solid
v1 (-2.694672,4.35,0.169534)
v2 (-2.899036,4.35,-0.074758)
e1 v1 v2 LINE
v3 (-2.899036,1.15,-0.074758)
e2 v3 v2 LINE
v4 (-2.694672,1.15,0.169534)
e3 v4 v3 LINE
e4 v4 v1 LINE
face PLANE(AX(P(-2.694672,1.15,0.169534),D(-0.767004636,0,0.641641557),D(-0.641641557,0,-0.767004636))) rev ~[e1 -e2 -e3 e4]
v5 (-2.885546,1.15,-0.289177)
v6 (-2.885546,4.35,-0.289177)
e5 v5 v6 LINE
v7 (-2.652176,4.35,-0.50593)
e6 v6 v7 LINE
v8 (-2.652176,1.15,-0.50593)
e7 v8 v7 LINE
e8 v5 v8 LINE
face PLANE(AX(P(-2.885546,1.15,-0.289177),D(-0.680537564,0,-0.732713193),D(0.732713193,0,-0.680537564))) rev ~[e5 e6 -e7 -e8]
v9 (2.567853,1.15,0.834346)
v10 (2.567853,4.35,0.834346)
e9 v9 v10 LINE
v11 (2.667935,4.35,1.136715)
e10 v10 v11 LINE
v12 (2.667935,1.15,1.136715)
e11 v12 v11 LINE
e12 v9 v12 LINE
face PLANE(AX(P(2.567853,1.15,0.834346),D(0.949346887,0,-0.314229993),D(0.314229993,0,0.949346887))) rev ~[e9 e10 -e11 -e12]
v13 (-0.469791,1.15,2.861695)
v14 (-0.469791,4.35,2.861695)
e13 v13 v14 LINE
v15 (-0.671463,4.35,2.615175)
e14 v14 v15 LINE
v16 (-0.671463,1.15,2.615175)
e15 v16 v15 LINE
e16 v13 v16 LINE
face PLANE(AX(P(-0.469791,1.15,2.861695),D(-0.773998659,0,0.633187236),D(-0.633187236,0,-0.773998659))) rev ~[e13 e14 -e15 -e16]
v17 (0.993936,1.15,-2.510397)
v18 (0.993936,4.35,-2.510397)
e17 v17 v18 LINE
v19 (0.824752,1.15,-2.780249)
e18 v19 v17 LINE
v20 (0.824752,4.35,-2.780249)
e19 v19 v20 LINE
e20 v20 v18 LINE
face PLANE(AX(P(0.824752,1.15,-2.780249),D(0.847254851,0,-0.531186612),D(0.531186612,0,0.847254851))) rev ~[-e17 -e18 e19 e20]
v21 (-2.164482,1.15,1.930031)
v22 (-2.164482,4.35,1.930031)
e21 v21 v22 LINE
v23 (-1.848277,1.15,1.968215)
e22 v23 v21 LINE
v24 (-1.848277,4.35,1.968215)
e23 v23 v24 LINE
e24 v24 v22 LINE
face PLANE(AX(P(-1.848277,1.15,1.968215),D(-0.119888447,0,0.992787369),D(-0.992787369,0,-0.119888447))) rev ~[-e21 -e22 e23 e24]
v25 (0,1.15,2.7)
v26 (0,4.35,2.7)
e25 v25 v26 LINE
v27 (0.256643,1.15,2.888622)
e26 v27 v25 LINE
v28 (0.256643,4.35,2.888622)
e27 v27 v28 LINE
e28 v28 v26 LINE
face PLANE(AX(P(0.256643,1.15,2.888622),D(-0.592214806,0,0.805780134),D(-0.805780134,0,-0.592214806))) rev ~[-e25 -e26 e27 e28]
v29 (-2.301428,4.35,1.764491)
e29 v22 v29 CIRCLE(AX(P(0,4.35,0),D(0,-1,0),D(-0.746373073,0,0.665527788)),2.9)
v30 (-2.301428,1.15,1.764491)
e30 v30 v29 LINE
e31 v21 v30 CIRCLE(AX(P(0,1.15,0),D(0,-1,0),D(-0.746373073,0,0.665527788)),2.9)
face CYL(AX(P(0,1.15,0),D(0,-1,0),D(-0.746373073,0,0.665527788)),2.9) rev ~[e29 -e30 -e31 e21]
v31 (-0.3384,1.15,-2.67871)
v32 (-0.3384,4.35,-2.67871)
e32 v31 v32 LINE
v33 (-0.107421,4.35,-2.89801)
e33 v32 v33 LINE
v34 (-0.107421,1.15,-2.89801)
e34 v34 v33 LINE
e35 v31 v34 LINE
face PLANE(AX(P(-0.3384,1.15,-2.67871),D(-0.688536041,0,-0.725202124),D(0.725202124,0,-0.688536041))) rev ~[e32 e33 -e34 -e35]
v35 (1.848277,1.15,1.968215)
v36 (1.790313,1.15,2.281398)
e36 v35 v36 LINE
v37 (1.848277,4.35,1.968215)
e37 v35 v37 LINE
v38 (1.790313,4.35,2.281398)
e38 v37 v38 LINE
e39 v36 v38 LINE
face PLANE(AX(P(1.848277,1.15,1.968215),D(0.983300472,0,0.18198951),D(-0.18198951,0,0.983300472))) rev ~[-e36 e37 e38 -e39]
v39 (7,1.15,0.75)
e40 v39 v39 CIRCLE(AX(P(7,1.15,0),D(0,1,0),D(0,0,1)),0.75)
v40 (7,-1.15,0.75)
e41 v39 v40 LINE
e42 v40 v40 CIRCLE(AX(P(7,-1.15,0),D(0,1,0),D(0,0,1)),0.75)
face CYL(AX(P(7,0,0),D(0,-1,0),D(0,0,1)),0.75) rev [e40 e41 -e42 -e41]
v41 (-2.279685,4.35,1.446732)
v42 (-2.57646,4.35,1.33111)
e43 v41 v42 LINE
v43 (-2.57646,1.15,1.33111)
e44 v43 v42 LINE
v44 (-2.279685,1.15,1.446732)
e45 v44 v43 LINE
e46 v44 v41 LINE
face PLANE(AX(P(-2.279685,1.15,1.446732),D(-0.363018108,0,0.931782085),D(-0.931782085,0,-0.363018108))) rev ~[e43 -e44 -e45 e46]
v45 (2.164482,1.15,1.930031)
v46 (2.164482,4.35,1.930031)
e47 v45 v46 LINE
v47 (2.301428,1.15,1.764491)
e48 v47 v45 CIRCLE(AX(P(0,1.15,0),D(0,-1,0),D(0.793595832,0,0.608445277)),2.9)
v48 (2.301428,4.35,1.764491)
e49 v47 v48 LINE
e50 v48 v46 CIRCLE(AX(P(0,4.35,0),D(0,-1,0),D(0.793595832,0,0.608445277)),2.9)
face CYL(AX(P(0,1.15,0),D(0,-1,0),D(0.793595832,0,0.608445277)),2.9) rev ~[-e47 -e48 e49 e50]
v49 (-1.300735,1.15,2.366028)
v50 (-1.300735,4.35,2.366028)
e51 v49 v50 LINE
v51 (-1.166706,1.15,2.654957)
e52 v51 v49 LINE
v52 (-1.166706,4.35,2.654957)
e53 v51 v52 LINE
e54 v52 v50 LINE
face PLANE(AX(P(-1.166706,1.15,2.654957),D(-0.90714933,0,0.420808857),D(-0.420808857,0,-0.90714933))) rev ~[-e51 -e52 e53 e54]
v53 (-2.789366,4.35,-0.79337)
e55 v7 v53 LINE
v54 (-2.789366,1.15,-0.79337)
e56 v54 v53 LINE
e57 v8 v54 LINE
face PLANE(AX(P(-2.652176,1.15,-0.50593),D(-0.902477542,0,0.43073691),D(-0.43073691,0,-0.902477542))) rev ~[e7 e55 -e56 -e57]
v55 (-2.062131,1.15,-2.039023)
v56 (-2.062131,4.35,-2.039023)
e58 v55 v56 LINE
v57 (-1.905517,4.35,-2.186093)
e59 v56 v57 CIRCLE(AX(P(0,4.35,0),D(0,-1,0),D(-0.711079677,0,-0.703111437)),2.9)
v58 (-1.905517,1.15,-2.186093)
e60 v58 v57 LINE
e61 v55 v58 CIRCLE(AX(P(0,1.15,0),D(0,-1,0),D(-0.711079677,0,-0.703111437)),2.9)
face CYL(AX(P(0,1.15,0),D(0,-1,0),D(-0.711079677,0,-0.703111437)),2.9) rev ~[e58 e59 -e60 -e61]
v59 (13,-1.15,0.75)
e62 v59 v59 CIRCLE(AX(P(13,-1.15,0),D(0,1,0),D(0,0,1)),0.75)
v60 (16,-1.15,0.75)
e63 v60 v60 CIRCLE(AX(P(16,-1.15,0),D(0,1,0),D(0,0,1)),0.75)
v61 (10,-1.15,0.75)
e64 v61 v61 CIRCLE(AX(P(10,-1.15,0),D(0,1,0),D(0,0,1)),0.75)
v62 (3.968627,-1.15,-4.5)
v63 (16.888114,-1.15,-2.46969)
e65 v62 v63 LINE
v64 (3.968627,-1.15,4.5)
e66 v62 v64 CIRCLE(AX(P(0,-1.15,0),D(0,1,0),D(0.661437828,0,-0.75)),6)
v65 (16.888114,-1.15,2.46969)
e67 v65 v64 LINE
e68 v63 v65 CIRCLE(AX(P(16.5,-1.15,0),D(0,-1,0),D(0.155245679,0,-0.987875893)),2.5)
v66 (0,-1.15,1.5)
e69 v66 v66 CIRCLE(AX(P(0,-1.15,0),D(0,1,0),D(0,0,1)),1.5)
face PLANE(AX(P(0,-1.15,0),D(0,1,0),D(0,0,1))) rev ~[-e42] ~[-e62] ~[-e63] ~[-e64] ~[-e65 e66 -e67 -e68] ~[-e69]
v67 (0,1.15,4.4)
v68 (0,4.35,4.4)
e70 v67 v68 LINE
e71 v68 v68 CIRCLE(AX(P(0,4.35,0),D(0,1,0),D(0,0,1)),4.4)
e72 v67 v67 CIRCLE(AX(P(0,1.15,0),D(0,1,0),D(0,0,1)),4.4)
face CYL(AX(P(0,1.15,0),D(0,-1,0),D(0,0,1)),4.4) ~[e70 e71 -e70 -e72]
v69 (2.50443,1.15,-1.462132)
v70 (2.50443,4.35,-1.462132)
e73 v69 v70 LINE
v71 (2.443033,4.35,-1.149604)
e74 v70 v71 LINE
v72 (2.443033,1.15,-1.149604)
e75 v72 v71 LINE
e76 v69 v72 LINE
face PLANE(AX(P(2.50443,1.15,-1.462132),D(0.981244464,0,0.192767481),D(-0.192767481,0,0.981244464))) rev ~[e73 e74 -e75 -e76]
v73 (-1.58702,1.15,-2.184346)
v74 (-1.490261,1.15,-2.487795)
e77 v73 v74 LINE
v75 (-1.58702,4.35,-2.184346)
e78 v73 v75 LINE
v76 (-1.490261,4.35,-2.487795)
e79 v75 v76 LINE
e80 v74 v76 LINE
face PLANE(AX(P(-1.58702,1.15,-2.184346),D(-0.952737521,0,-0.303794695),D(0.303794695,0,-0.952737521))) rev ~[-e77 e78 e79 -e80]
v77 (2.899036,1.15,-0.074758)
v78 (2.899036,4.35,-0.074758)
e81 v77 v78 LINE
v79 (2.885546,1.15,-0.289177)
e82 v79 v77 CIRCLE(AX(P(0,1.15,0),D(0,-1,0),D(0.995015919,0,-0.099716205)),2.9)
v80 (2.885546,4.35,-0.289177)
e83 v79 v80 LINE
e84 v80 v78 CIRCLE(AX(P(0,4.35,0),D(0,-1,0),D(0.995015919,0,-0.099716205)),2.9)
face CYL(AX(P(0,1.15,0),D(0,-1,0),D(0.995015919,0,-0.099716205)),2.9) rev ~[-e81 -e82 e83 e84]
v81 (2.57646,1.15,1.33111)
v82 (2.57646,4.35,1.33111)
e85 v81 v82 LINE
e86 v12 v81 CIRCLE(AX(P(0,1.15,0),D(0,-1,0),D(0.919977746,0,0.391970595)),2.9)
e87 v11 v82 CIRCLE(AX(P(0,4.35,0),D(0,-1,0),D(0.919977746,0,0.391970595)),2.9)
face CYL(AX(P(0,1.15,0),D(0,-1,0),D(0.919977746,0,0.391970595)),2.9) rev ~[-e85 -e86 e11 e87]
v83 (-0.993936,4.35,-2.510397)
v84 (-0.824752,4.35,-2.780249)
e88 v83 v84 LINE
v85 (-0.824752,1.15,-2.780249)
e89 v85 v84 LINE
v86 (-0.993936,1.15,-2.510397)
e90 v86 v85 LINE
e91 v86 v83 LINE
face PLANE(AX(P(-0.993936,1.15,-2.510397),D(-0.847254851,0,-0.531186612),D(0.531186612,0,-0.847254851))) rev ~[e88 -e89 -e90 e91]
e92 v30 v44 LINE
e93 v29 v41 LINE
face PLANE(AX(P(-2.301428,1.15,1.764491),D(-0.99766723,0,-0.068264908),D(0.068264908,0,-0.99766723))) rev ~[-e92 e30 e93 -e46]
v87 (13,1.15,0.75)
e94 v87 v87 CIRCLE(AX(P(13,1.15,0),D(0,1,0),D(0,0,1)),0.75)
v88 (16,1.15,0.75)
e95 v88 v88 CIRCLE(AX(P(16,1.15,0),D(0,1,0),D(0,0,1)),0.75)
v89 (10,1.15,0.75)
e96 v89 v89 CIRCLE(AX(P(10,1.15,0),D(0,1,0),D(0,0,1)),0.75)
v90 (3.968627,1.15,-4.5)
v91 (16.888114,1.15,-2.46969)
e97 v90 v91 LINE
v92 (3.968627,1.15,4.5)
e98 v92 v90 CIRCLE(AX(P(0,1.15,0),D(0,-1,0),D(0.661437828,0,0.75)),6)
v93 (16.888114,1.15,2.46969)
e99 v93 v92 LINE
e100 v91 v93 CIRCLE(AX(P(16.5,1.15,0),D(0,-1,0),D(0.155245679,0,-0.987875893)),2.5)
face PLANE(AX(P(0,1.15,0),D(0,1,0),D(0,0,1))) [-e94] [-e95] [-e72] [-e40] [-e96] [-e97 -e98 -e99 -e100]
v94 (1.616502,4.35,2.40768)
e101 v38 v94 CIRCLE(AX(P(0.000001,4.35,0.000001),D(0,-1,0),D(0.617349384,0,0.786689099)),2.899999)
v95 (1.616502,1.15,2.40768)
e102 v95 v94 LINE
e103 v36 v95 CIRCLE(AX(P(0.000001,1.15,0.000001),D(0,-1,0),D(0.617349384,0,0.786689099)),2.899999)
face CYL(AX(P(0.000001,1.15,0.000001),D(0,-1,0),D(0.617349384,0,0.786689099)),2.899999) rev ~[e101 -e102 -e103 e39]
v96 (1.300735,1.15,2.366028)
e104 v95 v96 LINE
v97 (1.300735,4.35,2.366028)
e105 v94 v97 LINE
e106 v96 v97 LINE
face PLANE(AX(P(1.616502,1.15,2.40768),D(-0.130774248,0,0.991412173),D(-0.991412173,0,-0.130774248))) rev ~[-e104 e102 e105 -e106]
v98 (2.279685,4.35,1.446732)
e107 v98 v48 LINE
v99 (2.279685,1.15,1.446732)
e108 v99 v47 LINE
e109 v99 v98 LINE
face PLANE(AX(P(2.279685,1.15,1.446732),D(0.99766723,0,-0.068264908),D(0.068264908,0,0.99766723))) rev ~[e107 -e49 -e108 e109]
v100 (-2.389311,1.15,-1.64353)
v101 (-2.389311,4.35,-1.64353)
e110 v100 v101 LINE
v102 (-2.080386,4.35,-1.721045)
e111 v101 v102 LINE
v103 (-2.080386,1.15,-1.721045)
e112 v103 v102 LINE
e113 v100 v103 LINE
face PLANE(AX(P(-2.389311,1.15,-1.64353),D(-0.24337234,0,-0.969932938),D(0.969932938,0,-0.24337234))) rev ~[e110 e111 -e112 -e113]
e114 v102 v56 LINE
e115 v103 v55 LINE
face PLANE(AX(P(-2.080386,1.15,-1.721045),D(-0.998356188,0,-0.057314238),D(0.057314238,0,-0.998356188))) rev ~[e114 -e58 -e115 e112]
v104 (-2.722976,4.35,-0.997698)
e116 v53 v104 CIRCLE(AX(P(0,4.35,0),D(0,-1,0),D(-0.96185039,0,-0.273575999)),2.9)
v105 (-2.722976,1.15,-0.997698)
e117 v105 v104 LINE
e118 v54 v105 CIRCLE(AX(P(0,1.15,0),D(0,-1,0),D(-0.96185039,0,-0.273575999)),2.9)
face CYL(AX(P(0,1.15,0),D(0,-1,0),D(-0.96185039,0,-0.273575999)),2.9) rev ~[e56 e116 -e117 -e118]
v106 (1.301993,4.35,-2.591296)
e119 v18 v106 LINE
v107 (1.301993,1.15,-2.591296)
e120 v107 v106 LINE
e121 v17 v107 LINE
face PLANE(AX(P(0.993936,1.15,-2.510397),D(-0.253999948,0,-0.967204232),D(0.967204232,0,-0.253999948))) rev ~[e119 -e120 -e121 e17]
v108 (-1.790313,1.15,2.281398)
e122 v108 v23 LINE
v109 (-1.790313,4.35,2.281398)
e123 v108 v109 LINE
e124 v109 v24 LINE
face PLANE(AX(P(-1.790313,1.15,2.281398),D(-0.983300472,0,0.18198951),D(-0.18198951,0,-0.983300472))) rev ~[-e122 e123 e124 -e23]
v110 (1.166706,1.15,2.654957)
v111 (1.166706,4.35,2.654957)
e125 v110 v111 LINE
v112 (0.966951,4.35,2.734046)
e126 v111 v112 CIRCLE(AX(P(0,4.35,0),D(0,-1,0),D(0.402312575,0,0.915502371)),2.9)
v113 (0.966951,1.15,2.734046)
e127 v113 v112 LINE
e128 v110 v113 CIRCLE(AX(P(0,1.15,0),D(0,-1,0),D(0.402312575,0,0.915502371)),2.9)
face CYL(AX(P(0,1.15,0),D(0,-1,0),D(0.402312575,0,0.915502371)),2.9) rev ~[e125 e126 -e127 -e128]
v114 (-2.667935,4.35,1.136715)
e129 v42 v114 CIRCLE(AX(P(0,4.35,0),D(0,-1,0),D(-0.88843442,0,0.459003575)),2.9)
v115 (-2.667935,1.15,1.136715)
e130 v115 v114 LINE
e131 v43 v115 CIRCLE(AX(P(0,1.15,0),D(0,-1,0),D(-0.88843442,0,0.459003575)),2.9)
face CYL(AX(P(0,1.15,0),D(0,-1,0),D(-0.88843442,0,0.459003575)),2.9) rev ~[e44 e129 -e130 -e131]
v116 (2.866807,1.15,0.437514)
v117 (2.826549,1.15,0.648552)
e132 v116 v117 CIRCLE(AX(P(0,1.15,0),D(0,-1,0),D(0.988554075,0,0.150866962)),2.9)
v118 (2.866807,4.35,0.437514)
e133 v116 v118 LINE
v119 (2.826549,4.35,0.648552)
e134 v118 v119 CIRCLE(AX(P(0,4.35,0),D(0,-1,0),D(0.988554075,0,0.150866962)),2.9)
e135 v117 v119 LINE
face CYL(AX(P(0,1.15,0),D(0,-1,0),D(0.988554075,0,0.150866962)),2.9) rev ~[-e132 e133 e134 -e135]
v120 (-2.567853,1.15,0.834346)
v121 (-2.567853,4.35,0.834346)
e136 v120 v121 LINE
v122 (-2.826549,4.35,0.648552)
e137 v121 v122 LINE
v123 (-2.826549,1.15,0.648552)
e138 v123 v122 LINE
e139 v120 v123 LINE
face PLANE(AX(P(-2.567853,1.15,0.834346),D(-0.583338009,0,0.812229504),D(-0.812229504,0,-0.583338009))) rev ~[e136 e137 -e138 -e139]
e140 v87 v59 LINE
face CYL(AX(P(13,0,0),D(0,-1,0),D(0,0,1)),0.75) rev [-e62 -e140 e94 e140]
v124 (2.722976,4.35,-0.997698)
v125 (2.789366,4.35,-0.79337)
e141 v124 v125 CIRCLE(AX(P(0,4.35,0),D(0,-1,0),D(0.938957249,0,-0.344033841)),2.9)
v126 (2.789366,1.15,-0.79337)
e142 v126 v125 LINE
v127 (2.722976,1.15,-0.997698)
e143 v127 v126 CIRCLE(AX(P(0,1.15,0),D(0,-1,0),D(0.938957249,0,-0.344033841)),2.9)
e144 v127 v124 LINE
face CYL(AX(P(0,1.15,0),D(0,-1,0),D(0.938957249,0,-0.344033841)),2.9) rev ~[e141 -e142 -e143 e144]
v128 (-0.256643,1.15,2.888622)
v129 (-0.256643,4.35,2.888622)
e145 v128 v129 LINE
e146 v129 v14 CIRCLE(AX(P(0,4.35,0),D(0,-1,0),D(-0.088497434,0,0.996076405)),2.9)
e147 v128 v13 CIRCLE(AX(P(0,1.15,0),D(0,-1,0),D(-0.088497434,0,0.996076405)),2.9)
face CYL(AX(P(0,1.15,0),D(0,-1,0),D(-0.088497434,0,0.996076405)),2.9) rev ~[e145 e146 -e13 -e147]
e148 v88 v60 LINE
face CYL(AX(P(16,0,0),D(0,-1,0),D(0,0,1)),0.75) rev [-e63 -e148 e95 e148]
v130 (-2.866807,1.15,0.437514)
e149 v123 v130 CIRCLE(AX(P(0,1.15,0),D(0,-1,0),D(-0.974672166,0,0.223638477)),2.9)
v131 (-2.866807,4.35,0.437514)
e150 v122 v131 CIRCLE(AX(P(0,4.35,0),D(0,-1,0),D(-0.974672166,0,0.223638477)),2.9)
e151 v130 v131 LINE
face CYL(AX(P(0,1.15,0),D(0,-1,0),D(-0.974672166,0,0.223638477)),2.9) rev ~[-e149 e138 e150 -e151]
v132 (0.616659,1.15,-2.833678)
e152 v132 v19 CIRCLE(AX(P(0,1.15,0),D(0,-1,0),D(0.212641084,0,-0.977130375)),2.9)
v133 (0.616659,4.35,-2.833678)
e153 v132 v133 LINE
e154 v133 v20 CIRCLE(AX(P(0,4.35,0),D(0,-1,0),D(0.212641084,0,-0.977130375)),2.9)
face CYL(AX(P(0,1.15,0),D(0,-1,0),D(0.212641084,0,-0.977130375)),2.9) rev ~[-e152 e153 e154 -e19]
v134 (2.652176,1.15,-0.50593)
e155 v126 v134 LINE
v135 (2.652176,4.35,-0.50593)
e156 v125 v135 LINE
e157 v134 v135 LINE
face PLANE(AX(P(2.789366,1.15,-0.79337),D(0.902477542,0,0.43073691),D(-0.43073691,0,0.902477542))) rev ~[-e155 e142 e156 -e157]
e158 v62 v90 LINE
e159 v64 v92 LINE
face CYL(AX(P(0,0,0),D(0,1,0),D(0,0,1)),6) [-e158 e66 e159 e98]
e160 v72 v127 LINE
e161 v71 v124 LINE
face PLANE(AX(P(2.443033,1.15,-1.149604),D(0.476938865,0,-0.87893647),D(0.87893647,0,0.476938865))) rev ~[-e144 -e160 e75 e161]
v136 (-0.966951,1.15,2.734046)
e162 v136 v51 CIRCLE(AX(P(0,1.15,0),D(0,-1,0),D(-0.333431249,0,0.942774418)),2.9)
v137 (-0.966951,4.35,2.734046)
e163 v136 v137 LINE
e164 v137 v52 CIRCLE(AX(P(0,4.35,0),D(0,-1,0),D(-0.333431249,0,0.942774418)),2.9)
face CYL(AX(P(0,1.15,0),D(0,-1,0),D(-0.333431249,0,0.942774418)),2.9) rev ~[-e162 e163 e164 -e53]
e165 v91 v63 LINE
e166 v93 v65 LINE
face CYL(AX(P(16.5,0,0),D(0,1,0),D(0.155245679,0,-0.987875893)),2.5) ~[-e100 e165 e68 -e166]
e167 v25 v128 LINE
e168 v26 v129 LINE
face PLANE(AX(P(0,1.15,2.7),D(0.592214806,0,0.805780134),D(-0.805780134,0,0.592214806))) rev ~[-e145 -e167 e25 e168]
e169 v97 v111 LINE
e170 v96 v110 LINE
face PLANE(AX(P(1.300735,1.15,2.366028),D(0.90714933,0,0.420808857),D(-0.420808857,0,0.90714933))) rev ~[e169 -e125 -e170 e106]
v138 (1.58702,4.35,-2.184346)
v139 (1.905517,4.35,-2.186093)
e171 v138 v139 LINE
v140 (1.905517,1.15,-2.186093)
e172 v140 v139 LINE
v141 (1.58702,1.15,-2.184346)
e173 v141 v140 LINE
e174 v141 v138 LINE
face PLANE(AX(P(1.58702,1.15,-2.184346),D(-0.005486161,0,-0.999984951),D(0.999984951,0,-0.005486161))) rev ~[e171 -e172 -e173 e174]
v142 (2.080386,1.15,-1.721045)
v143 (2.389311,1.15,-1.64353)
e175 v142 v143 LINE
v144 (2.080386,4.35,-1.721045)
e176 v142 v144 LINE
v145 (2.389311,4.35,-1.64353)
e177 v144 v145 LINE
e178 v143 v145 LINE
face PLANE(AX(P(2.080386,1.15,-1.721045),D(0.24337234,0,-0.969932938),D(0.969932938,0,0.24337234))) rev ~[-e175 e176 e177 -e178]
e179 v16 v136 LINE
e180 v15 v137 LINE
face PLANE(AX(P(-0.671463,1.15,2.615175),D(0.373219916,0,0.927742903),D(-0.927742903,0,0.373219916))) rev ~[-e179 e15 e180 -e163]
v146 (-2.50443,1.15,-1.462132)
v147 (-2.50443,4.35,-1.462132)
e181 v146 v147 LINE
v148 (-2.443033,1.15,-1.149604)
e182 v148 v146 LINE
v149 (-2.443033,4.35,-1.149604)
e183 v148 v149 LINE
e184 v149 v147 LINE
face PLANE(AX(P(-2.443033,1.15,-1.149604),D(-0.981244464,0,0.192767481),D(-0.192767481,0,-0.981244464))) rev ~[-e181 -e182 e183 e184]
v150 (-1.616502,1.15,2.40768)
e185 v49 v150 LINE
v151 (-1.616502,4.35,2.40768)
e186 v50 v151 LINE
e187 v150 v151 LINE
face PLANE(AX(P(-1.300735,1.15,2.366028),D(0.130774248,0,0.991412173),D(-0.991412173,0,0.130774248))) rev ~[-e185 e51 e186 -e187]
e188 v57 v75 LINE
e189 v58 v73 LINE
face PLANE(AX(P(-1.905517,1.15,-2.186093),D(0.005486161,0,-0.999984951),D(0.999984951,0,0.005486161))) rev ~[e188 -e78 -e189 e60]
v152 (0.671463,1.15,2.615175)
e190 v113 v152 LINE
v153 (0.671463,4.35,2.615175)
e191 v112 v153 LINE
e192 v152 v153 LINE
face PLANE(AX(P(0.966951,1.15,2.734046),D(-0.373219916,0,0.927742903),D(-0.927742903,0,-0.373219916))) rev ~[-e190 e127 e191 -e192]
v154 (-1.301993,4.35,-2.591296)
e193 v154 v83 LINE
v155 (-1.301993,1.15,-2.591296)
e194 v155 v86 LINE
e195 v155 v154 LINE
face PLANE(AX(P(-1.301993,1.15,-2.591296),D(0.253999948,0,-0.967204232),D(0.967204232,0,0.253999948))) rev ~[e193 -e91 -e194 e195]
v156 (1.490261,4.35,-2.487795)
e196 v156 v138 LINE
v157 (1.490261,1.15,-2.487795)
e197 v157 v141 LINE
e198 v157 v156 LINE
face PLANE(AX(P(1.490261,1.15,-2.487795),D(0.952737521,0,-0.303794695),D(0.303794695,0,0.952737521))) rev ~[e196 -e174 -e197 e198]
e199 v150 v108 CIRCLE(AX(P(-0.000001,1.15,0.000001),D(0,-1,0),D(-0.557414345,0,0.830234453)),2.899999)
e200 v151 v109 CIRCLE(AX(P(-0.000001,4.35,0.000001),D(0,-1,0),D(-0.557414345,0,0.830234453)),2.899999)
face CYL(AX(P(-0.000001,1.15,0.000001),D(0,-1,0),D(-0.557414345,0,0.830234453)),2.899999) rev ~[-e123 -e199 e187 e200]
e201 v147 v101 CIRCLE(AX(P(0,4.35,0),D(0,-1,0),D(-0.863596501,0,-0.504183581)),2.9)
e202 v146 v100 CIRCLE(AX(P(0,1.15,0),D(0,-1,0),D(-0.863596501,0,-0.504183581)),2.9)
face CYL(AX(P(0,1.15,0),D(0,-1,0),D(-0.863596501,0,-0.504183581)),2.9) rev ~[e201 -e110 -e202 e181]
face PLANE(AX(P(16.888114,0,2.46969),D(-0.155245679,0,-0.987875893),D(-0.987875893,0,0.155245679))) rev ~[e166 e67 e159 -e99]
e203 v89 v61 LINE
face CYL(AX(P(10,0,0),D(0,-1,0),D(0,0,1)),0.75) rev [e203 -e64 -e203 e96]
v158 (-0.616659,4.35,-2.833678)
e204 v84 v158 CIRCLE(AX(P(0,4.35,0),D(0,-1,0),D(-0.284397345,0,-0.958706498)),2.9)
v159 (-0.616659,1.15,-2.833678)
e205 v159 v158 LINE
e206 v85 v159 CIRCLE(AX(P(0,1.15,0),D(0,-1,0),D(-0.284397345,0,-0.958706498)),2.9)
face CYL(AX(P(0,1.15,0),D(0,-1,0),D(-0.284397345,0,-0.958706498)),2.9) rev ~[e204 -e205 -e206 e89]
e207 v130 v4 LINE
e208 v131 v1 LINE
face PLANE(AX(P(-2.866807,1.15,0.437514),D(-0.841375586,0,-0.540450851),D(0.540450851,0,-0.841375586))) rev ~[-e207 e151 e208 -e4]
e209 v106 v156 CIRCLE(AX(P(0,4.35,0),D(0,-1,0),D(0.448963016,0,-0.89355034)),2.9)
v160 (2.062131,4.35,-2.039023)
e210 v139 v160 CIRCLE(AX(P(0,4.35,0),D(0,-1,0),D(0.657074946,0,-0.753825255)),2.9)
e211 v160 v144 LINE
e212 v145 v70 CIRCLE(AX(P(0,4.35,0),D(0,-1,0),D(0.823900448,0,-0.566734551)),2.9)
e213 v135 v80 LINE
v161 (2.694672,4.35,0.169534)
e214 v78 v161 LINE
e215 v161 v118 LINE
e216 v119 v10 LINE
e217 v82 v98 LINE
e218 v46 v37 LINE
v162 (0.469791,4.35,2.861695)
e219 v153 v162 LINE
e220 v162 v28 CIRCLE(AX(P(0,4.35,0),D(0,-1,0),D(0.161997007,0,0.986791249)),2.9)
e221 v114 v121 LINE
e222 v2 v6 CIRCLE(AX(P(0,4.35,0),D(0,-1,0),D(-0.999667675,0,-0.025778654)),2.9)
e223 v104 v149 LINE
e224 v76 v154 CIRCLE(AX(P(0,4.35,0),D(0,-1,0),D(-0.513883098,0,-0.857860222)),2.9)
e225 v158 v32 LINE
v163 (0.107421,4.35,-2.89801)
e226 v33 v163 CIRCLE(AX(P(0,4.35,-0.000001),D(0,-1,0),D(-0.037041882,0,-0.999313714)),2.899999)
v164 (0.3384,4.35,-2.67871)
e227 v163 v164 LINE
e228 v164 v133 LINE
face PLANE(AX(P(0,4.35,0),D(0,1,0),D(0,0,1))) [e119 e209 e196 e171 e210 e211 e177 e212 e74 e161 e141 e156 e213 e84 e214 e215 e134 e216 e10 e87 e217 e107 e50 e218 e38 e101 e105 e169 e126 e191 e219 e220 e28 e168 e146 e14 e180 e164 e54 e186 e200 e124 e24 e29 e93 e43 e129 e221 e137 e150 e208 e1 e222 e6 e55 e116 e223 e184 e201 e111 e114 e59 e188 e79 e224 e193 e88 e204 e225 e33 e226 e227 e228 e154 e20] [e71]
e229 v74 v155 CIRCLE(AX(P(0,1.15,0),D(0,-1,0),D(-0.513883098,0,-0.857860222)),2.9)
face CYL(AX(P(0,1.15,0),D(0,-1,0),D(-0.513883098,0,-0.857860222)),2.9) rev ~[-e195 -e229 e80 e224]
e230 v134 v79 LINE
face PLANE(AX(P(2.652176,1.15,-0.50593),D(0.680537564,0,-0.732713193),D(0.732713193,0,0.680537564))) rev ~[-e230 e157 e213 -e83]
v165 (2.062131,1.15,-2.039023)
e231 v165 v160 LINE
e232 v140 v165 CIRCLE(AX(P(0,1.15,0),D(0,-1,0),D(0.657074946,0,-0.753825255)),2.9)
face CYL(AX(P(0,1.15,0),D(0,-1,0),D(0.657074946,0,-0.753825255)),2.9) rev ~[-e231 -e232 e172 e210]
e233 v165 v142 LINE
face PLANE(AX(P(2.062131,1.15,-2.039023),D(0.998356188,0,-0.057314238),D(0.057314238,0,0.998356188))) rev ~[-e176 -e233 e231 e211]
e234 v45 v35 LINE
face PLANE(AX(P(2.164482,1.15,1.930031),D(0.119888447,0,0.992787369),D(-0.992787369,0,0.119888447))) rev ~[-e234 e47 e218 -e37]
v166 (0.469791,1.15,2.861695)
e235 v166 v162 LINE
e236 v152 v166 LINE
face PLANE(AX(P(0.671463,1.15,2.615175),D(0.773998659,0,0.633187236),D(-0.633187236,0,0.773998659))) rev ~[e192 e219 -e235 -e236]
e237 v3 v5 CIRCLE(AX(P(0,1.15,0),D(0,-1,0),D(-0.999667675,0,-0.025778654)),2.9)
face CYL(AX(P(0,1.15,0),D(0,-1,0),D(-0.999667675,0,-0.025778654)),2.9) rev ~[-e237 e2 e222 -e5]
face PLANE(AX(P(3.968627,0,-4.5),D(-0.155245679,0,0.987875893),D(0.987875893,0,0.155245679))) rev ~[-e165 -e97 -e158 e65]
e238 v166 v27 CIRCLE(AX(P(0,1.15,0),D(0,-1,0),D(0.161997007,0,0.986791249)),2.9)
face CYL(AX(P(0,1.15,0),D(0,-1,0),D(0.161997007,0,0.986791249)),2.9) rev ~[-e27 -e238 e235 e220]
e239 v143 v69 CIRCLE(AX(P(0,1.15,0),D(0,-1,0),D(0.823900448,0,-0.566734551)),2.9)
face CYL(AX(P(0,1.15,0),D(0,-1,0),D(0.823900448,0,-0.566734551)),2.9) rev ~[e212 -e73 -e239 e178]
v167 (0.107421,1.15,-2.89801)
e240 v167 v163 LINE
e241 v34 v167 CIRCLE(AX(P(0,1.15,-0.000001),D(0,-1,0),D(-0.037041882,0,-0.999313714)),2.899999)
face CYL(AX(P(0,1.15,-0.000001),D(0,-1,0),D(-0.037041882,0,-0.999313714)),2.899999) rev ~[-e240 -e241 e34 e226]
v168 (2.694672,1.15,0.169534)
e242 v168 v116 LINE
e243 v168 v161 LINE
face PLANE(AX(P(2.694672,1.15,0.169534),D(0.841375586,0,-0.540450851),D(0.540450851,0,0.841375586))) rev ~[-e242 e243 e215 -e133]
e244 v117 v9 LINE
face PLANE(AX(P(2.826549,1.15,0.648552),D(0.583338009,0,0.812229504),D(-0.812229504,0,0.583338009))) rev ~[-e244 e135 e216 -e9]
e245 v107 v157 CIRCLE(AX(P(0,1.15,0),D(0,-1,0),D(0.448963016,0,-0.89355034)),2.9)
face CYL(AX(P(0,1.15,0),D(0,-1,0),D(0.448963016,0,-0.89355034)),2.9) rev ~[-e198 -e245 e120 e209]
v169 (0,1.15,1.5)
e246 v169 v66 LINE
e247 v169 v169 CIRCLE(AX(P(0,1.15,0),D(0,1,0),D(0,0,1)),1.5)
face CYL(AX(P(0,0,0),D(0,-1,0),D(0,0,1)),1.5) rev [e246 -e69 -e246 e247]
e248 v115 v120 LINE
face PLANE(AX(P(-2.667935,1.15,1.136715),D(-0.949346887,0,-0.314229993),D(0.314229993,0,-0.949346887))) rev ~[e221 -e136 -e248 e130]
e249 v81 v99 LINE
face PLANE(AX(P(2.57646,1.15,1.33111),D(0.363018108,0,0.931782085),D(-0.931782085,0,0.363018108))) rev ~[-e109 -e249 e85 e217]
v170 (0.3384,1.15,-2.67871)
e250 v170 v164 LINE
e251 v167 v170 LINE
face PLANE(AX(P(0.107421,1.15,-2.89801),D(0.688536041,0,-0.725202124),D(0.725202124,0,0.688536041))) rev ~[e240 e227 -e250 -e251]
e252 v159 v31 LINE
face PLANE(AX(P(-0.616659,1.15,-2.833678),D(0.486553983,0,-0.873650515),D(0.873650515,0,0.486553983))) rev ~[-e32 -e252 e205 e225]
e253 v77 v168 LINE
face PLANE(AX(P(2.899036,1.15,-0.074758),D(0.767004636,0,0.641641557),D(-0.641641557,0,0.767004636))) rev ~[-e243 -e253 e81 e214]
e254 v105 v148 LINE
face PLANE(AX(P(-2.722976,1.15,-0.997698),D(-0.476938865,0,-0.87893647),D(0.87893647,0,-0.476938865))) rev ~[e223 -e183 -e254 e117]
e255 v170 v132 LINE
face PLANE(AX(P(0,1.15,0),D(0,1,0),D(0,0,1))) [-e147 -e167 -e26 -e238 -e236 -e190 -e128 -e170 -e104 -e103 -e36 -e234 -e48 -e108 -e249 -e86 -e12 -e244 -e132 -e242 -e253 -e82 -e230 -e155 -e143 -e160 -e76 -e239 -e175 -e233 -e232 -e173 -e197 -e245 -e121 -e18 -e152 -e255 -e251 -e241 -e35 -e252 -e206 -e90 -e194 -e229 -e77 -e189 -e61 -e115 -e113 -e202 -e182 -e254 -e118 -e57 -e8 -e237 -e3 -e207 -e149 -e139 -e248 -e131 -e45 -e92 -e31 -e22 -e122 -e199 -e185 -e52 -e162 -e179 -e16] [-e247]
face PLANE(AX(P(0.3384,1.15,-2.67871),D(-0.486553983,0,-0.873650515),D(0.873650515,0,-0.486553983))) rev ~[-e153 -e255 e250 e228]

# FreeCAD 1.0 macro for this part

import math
import FreeCAD as App
import Part
import Sketcher

doc = App.newDocument("Part")
body = doc.addObject("PartDesign::Body", "Body")

sketch1 = doc.addObject("Sketcher::SketchObject", "Sketch")
body.addObject(sketch1)
sketch1.AttachmentSupport = (doc.XZ_Plane, [""])
sketch1.MapMode = "FlatFace"
sketch1.addGeometry([
    Part.Circle(App.Vector(0, 0, 0), App.Vector(0, 0, 1), 6),
    Part.Circle(App.Vector(0, 0, 0), App.Vector(0, 0, 1), 1.5),
], False)
sketch1.addConstraint([
    Sketcher.Constraint("Coincident", 0, 3, -1, 1),
    Sketcher.Constraint("Coincident", 1, 3, -1, 1),
    Sketcher.Constraint("Diameter", 0, 12.0),
    Sketcher.Constraint("Diameter", 1, 3.0),
])
pad1 = doc.addObject("PartDesign::Pad", "Pad")
body.addObject(pad1)
pad1.Profile = sketch1
pad1.Length = 2.3
pad1.Midplane = True

sketch2 = doc.addObject("Sketcher::SketchObject", "Sketch001")
body.addObject(sketch2)
sketch2.AttachmentSupport = (doc.XZ_Plane, [""])
sketch2.MapMode = "FlatFace"
sketch2.AttachmentOffset = App.Placement(App.Vector(0, 0, -1.15), App.Rotation())
sketch2.addGeometry([
    Part.Circle(App.Vector(0, 0, 0), App.Vector(0, 0, 1), 4.4),
    Part.ArcOfCircle(Part.Circle(App.Vector(0, 0, 0), App.Vector(0, 0, 1), 2.9), math.radians(-92.12), math.radians(-87.88)),
    Part.LineSegment(App.Vector(0.11, -2.9, 0), App.Vector(0.34, -2.68, 0)),
    Part.LineSegment(App.Vector(0.34, -2.68, 0), App.Vector(0.62, -2.83, 0)),
    Part.ArcOfCircle(Part.Circle(App.Vector(0, 0, 0), App.Vector(0, 0, 1), 2.9), math.radians(-77.72), math.radians(-73.48)),
    Part.LineSegment(App.Vector(0.82, -2.78, 0), App.Vector(0.99, -2.51, 0)),
    Part.LineSegment(App.Vector(0.99, -2.51, 0), App.Vector(1.3, -2.59, 0)),
    Part.ArcOfCircle(Part.Circle(App.Vector(0, 0, 0), App.Vector(0, 0, 1), 2.9), math.radians(-63.32), math.radians(-59.08)),
    Part.LineSegment(App.Vector(1.49, -2.49, 0), App.Vector(1.59, -2.18, 0)),
    Part.LineSegment(App.Vector(1.59, -2.18, 0), App.Vector(1.91, -2.19, 0)),
    Part.ArcOfCircle(Part.Circle(App.Vector(0, 0, 0), App.Vector(0, 0, 1), 2.9), math.radians(-48.92), math.radians(-44.68)),
    Part.LineSegment(App.Vector(2.06, -2.04, 0), App.Vector(2.08, -1.72, 0)),
    Part.LineSegment(App.Vector(2.08, -1.72, 0), App.Vector(2.39, -1.64, 0)),
    Part.ArcOfCircle(Part.Circle(App.Vector(0, 0, 0), App.Vector(0, 0, 1), 2.9), math.radians(-34.52), math.radians(-30.28)),
    Part.LineSegment(App.Vector(2.5, -1.46, 0), App.Vector(2.44, -1.15, 0)),
    Part.LineSegment(App.Vector(2.44, -1.15, 0), App.Vector(2.72, -1, 0)),
    Part.ArcOfCircle(Part.Circle(App.Vector(0, 0, 0), App.Vector(0, 0, 1), 2.9), math.radians(-20.12), math.radians(-15.88)),
    Part.LineSegment(App.Vector(2.79, -0.79, 0), App.Vector(2.65, -0.51, 0)),
    Part.LineSegment(App.Vector(2.65, -0.51, 0), App.Vector(2.89, -0.29, 0)),
    Part.ArcOfCircle(Part.Circle(App.Vector(0, 0, 0), App.Vector(0, 0, 1), 2.9), math.radians(-5.72), math.radians(-1.48)),
    Part.LineSegment(App.Vector(2.9, -0.07, 0), App.Vector(2.69, 0.17, 0)),
    Part.LineSegment(App.Vector(2.69, 0.17, 0), App.Vector(2.87, 0.44, 0)),
    Part.ArcOfCircle(Part.Circle(App.Vector(0, 0, 0), App.Vector(0, 0, 1), 2.9), math.radians(8.68), math.radians(12.92)),
    Part.LineSegment(App.Vector(2.83, 0.65, 0), App.Vector(2.57, 0.83, 0)),
    Part.LineSegment(App.Vector(2.57, 0.83, 0), App.Vector(2.67, 1.14, 0)),
    Part.ArcOfCircle(Part.Circle(App.Vector(0, 0, 0), App.Vector(0, 0, 1), 2.9), math.radians(23.08), math.radians(27.32)),
    Part.LineSegment(App.Vector(2.58, 1.33, 0), App.Vector(2.28, 1.45, 0)),
    Part.LineSegment(App.Vector(2.28, 1.45, 0), App.Vector(2.3, 1.76, 0)),
    Part.ArcOfCircle(Part.Circle(App.Vector(0, 0, 0), App.Vector(0, 0, 1), 2.9), math.radians(37.48), math.radians(41.72)),
    Part.LineSegment(App.Vector(2.16, 1.93, 0), App.Vector(1.85, 1.97, 0)),
    Part.LineSegment(App.Vector(1.85, 1.97, 0), App.Vector(1.79, 2.28, 0)),
    Part.ArcOfCircle(Part.Circle(App.Vector(0, 0, 0), App.Vector(0, 0, 1), 2.9), math.radians(51.88), math.radians(56.12)),
    Part.LineSegment(App.Vector(1.62, 2.41, 0), App.Vector(1.3, 2.37, 0)),
    Part.LineSegment(App.Vector(1.3, 2.37, 0), App.Vector(1.17, 2.65, 0)),
    Part.ArcOfCircle(Part.Circle(App.Vector(0, 0, 0), App.Vector(0, 0, 1), 2.9), math.radians(66.28), math.radians(70.52)),
    Part.LineSegment(App.Vector(0.97, 2.73, 0), App.Vector(0.67, 2.62, 0)),
    Part.LineSegment(App.Vector(0.67, 2.62, 0), App.Vector(0.47, 2.86, 0)),
    Part.ArcOfCircle(Part.Circle(App.Vector(0, 0, 0), App.Vector(0, 0, 1), 2.9), math.radians(80.68), math.radians(84.92)),
    Part.LineSegment(App.Vector(0.26, 2.89, 0), App.Vector(0, 2.7, 0)),
    Part.LineSegment(App.Vector(0, 2.7, 0), App.Vector(-0.26, 2.89, 0)),
    Part.ArcOfCircle(Part.Circle(App.Vector(0, 0, 0), App.Vector(0, 0, 1), 2.9), math.radians(95.08), math.radians(99.32)),
    Part.LineSegment(App.Vector(-0.47, 2.86, 0), App.Vector(-0.67, 2.62, 0)),
    Part.LineSegment(App.Vector(-0.67, 2.62, 0), App.Vector(-0.97, 2.73, 0)),
    Part.ArcOfCircle(Part.Circle(App.Vector(0, 0, 0), App.Vector(0, 0, 1), 2.9), math.radians(109.48), math.radians(113.72)),
    Part.LineSegment(App.Vector(-1.17, 2.65, 0), App.Vector(-1.3, 2.37, 0)),
    Part.LineSegment(App.Vector(-1.3, 2.37, 0), App.Vector(-1.62, 2.41, 0)),
    Part.ArcOfCircle(Part.Circle(App.Vector(0, 0, 0), App.Vector(0, 0, 1), 2.9), math.radians(123.88), math.radians(128.12)),
    Part.LineSegment(App.Vector(-1.79, 2.28, 0), App.Vector(-1.85, 1.97, 0)),
    Part.LineSegment(App.Vector(-1.85, 1.97, 0), App.Vector(-2.16, 1.93, 0)),
    Part.ArcOfCircle(Part.Circle(App.Vector(0, 0, 0), App.Vector(0, 0, 1), 2.9), math.radians(138.28), math.radians(142.52)),
    Part.LineSegment(App.Vector(-2.3, 1.76, 0), App.Vector(-2.28, 1.45, 0)),
    Part.LineSegment(App.Vector(-2.28, 1.45, 0), App.Vector(-2.58, 1.33, 0)),
    Part.ArcOfCircle(Part.Circle(App.Vector(0, 0, 0), App.Vector(0, 0, 1), 2.9), math.radians(152.68), math.radians(156.92)),
    Part.LineSegment(App.Vector(-2.67, 1.14, 0), App.Vector(-2.57, 0.83, 0)),
    Part.LineSegment(App.Vector(-2.57, 0.83, 0), App.Vector(-2.83, 0.65, 0)),
    Part.ArcOfCircle(Part.Circle(App.Vector(0, 0, 0), App.Vector(0, 0, 1), 2.9), math.radians(167.08), math.radians(171.32)),
    Part.LineSegment(App.Vector(-2.87, 0.44, 0), App.Vector(-2.69, 0.17, 0)),
    Part.LineSegment(App.Vector(-2.69, 0.17, 0), App.Vector(-2.9, -0.07, 0)),
    Part.ArcOfCircle(Part.Circle(App.Vector(0, 0, 0), App.Vector(0, 0, 1), 2.9), math.radians(-178.52), math.radians(-174.28)),
    Part.LineSegment(App.Vector(-2.89, -0.29, 0), App.Vector(-2.65, -0.51, 0)),
    Part.LineSegment(App.Vector(-2.65, -0.51, 0), App.Vector(-2.79, -0.79, 0)),
    Part.ArcOfCircle(Part.Circle(App.Vector(0, 0, 0), App.Vector(0, 0, 1), 2.9), math.radians(-164.12), math.radians(-159.88)),
    Part.LineSegment(App.Vector(-2.72, -1, 0), App.Vector(-2.44, -1.15, 0)),
    Part.LineSegment(App.Vector(-2.44, -1.15, 0), App.Vector(-2.5, -1.46, 0)),
    Part.ArcOfCircle(Part.Circle(App.Vector(0, 0, 0), App.Vector(0, 0, 1), 2.9), math.radians(-149.72), math.radians(-145.48)),
    Part.LineSegment(App.Vector(-2.39, -1.64, 0), App.Vector(-2.08, -1.72, 0)),
    Part.LineSegment(App.Vector(-2.08, -1.72, 0), App.Vector(-2.06, -2.04, 0)),
    Part.ArcOfCircle(Part.Circle(App.Vector(0, 0, 0), App.Vector(0, 0, 1), 2.9), math.radians(-135.32), math.radians(-131.08)),
    Part.LineSegment(App.Vector(-1.91, -2.19, 0), App.Vector(-1.59, -2.18, 0)),
    Part.LineSegment(App.Vector(-1.59, -2.18, 0), App.Vector(-1.49, -2.49, 0)),
    Part.ArcOfCircle(Part.Circle(App.Vector(0, 0, 0), App.Vector(0, 0, 1), 2.9), math.radians(-120.92), math.radians(-116.68)),
    Part.LineSegment(App.Vector(-1.3, -2.59, 0), App.Vector(-0.99, -2.51, 0)),
    Part.LineSegment(App.Vector(-0.99, -2.51, 0), App.Vector(-0.82, -2.78, 0)),
    Part.ArcOfCircle(Part.Circle(App.Vector(0, 0, 0), App.Vector(0, 0, 1), 2.9), math.radians(-106.52), math.radians(-102.28)),
    Part.LineSegment(App.Vector(-0.62, -2.83, 0), App.Vector(-0.34, -2.68, 0)),
    Part.LineSegment(App.Vector(-0.34, -2.68, 0), App.Vector(-0.11, -2.9, 0)),
], False)
sketch2.addConstraint([
    Sketcher.Constraint("Coincident", 1, 2, 2, 1),
    Sketcher.Constraint("Coincident", 2, 2, 3, 1),
    Sketcher.Constraint("Coincident", 3, 2, 4, 1),
    Sketcher.Constraint("Coincident", 4, 2, 5, 1),
    Sketcher.Constraint("Coincident", 5, 2, 6, 1),
    Sketcher.Constraint("Coincident", 6, 2, 7, 1),
    Sketcher.Constraint("Coincident", 7, 2, 8, 1),
    Sketcher.Constraint("Coincident", 8, 2, 9, 1),
    Sketcher.Constraint("Coincident", 9, 2, 10, 1),
    Sketcher.Constraint("Coincident", 10, 2, 11, 1),
    Sketcher.Constraint("Coincident", 11, 2, 12, 1),
    Sketcher.Constraint("Coincident", 12, 2, 13, 1),
    Sketcher.Constraint("Coincident", 13, 2, 14, 1),
    Sketcher.Constraint("Coincident", 14, 2, 15, 1),
    Sketcher.Constraint("Coincident", 15, 2, 16, 1),
    Sketcher.Constraint("Coincident", 16, 2, 17, 1),
    Sketcher.Constraint("Coincident", 17, 2, 18, 1),
    Sketcher.Constraint("Coincident", 18, 2, 19, 1),
    Sketcher.Constraint("Coincident", 19, 2, 20, 1),
    Sketcher.Constraint("Coincident", 20, 2, 21, 1),
    Sketcher.Constraint("Coincident", 21, 2, 22, 1),
    Sketcher.Constraint("Coincident", 22, 2, 23, 1),
    Sketcher.Constraint("Coincident", 23, 2, 24, 1),
    Sketcher.Constraint("Coincident", 24, 2, 25, 1),
    Sketcher.Constraint("Coincident", 25, 2, 26, 1),
    Sketcher.Constraint("Coincident", 26, 2, 27, 1),
    Sketcher.Constraint("Coincident", 27, 2, 28, 1),
    Sketcher.Constraint("Coincident", 28, 2, 29, 1),
    Sketcher.Constraint("Coincident", 29, 2, 30, 1),
    Sketcher.Constraint("Coincident", 30, 2, 31, 1),
    Sketcher.Constraint("Coincident", 31, 2, 32, 1),
    Sketcher.Constraint("Coincident", 32, 2, 33, 1),
    Sketcher.Constraint("Coincident", 33, 2, 34, 1),
    Sketcher.Constraint("Coincident", 34, 2, 35, 1),
    Sketcher.Constraint("Coincident", 35, 2, 36, 1),
    Sketcher.Constraint("Coincident", 36, 2, 37, 1),
    Sketcher.Constraint("Coincident", 37, 2, 38, 1),
    Sketcher.Constraint("Coincident", 38, 2, 39, 1),
    Sketcher.Constraint("Coincident", 39, 2, 40, 1),
    Sketcher.Constraint("Coincident", 40, 2, 41, 1),
    Sketcher.Constraint("Coincident", 41, 2, 42, 1),
    Sketcher.Constraint("Coincident", 42, 2, 43, 1),
    Sketcher.Constraint("Coincident", 43, 2, 44, 1),
    Sketcher.Constraint("Coincident", 44, 2, 45, 1),
    Sketcher.Constraint("Coincident", 45, 2, 46, 1),
    Sketcher.Constraint("Coincident", 46, 2, 47, 1),
    Sketcher.Constraint("Coincident", 47, 2, 48, 1),
    Sketcher.Constraint("Coincident", 48, 2, 49, 1),
    Sketcher.Constraint("Coincident", 49, 2, 50, 1),
    Sketcher.Constraint("Coincident", 50, 2, 51, 1),
    Sketcher.Constraint("Coincident", 51, 2, 52, 1),
    Sketcher.Constraint("Coincident", 52, 2, 53, 1),
    Sketcher.Constraint("Coincident", 53, 2, 54, 1),
    Sketcher.Constraint("Coincident", 54, 2, 55, 1),
    Sketcher.Constraint("Coincident", 55, 2, 56, 1),
    Sketcher.Constraint("Coincident", 56, 2, 57, 1),
    Sketcher.Constraint("Coincident", 57, 2, 58, 1),
    Sketcher.Constraint("Coincident", 58, 2, 59, 1),
    Sketcher.Constraint("Coincident", 59, 2, 60, 1),
    Sketcher.Constraint("Coincident", 60, 2, 61, 1),
    Sketcher.Constraint("Coincident", 61, 2, 62, 1),
    Sketcher.Constraint("Coincident", 62, 2, 63, 1),
    Sketcher.Constraint("Coincident", 63, 2, 64, 1),
    Sketcher.Constraint("Coincident", 64, 2, 65, 1),
    Sketcher.Constraint("Coincident", 65, 2, 66, 1),
    Sketcher.Constraint("Coincident", 66, 2, 67, 1),
    Sketcher.Constraint("Coincident", 67, 2, 68, 1),
    Sketcher.Constraint("Coincident", 68, 2, 69, 1),
    Sketcher.Constraint("Coincident", 69, 2, 70, 1),
    Sketcher.Constraint("Coincident", 70, 2, 71, 1),
    Sketcher.Constraint("Coincident", 71, 2, 72, 1),
    Sketcher.Constraint("Coincident", 72, 2, 73, 1),
    Sketcher.Constraint("Coincident", 73, 2, 74, 1),
    Sketcher.Constraint("Coincident", 74, 2, 75, 1),
    Sketcher.Constraint("Coincident", 75, 2, 1, 1),
    Sketcher.Constraint("Coincident", 0, 3, -1, 1),
    Sketcher.Constraint("Coincident", 1, 3, -1, 1),
    Sketcher.Constraint("Coincident", 4, 3, -1, 1),
    Sketcher.Constraint("Coincident", 7, 3, -1, 1),
    Sketcher.Constraint("Coincident", 10, 3, -1, 1),
    Sketcher.Constraint("Coincident", 13, 3, -1, 1),
    Sketcher.Constraint("Coincident", 16, 3, -1, 1),
    Sketcher.Constraint("Coincident", 19, 3, -1, 1),
    Sketcher.Constraint("Coincident", 22, 3, -1, 1),
    Sketcher.Constraint("Coincident", 25, 3, -1, 1),
    Sketcher.Constraint("Coincident", 28, 3, -1, 1),
    Sketcher.Constraint("Coincident", 31, 3, -1, 1),
    Sketcher.Constraint("Coincident", 34, 3, -1, 1),
    Sketcher.Constraint("Coincident", 37, 3, -1, 1),
    Sketcher.Constraint("Coincident", 40, 3, -1, 1),
    Sketcher.Constraint("Coincident", 43, 3, -1, 1),
    Sketcher.Constraint("Coincident", 46, 3, -1, 1),
    Sketcher.Constraint("Coincident", 49, 3, -1, 1),
    Sketcher.Constraint("Coincident", 52, 3, -1, 1),
    Sketcher.Constraint("Coincident", 55, 3, -1, 1),
    Sketcher.Constraint("Coincident", 58, 3, -1, 1),
    Sketcher.Constraint("Coincident", 61, 3, -1, 1),
    Sketcher.Constraint("Coincident", 64, 3, -1, 1),
    Sketcher.Constraint("Coincident", 67, 3, -1, 1),
    Sketcher.Constraint("Coincident", 70, 3, -1, 1),
    Sketcher.Constraint("Coincident", 73, 3, -1, 1),
    Sketcher.Constraint("Equal", 1, 4),
    Sketcher.Constraint("Equal", 4, 7),
    Sketcher.Constraint("Equal", 7, 10),
    Sketcher.Constraint("Equal", 10, 13),
    Sketcher.Constraint("Equal", 13, 16),
    Sketcher.Constraint("Equal", 16, 19),
    Sketcher.Constraint("Equal", 19, 22),
    Sketcher.Constraint("Equal", 22, 25),
    Sketcher.Constraint("Equal", 25, 28),
    Sketcher.Constraint("Equal", 28, 31),
    Sketcher.Constraint("Equal", 31, 34),
    Sketcher.Constraint("Equal", 34, 37),
    Sketcher.Constraint("Equal", 37, 40),
    Sketcher.Constraint("Equal", 40, 43),
    Sketcher.Constraint("Equal", 43, 46),
    Sketcher.Constraint("Equal", 46, 49),
    Sketcher.Constraint("Equal", 49, 52),
    Sketcher.Constraint("Equal", 52, 55),
    Sketcher.Constraint("Equal", 55, 58),
    Sketcher.Constraint("Equal", 58, 61),
    Sketcher.Constraint("Equal", 61, 64),
    Sketcher.Constraint("Equal", 64, 67),
    Sketcher.Constraint("Equal", 67, 70),
    Sketcher.Constraint("Equal", 70, 73),
    Sketcher.Constraint("Symmetric", 35, 2, 41, 2, -2),
    Sketcher.Constraint("Symmetric", 32, 2, 44, 2, -2),
    Sketcher.Constraint("Symmetric", 29, 2, 47, 2, -2),
    Sketcher.Constraint("Symmetric", 26, 2, 50, 2, -2),
    Sketcher.Constraint("Symmetric", 23, 2, 53, 2, -2),
    Sketcher.Constraint("Symmetric", 20, 2, 56, 2, -2),
    Sketcher.Constraint("Symmetric", 17, 2, 59, 2, -2),
    Sketcher.Constraint("Symmetric", 14, 2, 62, 2, -2),
    Sketcher.Constraint("Symmetric", 11, 2, 65, 2, -2),
    Sketcher.Constraint("Symmetric", 8, 2, 68, 2, -2),
    Sketcher.Constraint("Symmetric", 5, 2, 71, 2, -2),
    Sketcher.Constraint("Symmetric", 2, 2, 74, 2, -2),
    Sketcher.Constraint("PointOnObject", 38, 2, -2),
    Sketcher.Constraint("Horizontal", 37, 2, 39, 2),
    Sketcher.Constraint("Horizontal", 36, 2, 40, 2),
    Sketcher.Constraint("Horizontal", 34, 2, 42, 2),
    Sketcher.Constraint("Horizontal", 33, 2, 43, 2),
    Sketcher.Constraint("Horizontal", 31, 2, 45, 2),
    Sketcher.Constraint("Horizontal", 30, 2, 46, 2),
    Sketcher.Constraint("Horizontal", 28, 2, 48, 2),
    Sketcher.Constraint("Horizontal", 27, 2, 49, 2),
    Sketcher.Constraint("Horizontal", 25, 2, 51, 2),
    Sketcher.Constraint("Horizontal", 24, 2, 52, 2),
    Sketcher.Constraint("Horizontal", 22, 2, 54, 2),
    Sketcher.Constraint("Horizontal", 21, 2, 55, 2),
    Sketcher.Constraint("Horizontal", 19, 2, 57, 2),
    Sketcher.Constraint("Horizontal", 18, 2, 58, 2),
    Sketcher.Constraint("Horizontal", 16, 2, 60, 2),
    Sketcher.Constraint("Horizontal", 15, 2, 61, 2),
    Sketcher.Constraint("Horizontal", 13, 2, 63, 2),
    Sketcher.Constraint("Horizontal", 12, 2, 64, 2),
    Sketcher.Constraint("Horizontal", 10, 2, 66, 2),
    Sketcher.Constraint("Horizontal", 9, 2, 67, 2),
    Sketcher.Constraint("Horizontal", 7, 2, 69, 2),
    Sketcher.Constraint("Horizontal", 6, 2, 70, 2),
    Sketcher.Constraint("Horizontal", 4, 2, 72, 2),
    Sketcher.Constraint("Horizontal", 3, 2, 73, 2),
    Sketcher.Constraint("Horizontal", 1, 2, 75, 2),
    Sketcher.Constraint("Equal", 2, 3),
    Sketcher.Constraint("Equal", 3, 5),
    Sketcher.Constraint("Equal", 5, 6),
    Sketcher.Constraint("Equal", 6, 8),
    Sketcher.Constraint("Equal", 8, 9),
    Sketcher.Constraint("Equal", 9, 11),
    Sketcher.Constraint("Equal", 11, 12),
    Sketcher.Constraint("Equal", 12, 14),
    Sketcher.Constraint("Equal", 14, 15),
    Sketcher.Constraint("Equal", 15, 17),
    Sketcher.Constraint("Equal", 17, 18),
    Sketcher.Constraint("Equal", 18, 20),
    Sketcher.Constraint("Equal", 20, 21),
    Sketcher.Constraint("Equal", 21, 23),
    Sketcher.Constraint("Equal", 23, 24),
    Sketcher.Constraint("Equal", 24, 26),
    Sketcher.Constraint("Equal", 26, 27),
    Sketcher.Constraint("Equal", 27, 29),
    Sketcher.Constraint("Equal", 29, 30),
    Sketcher.Constraint("Equal", 30, 32),
    Sketcher.Constraint("Equal", 32, 33),
    Sketcher.Constraint("Equal", 33, 35),
    Sketcher.Constraint("Equal", 35, 36),
    Sketcher.Constraint("Equal", 36, 38),
    Sketcher.Constraint("Diameter", 0, 8.8),
    Sketcher.Constraint("Radius", 1, 2.899999),
    Sketcher.Constraint("DistanceY", -1, 1, 38, 2, 2.7),
    Sketcher.Constraint("Distance", 2, 0.318502),
    Sketcher.Constraint("DistanceX", -1, 1, 2, 2, 0.3384),
    Sketcher.Constraint("DistanceY", 15, 2, -1, 1, 0.997698),
    Sketcher.Constraint("DistanceY", -1, 1, 30, 2, 2.281398),
    Sketcher.Constraint("DistanceX", -1, 1, 31, 2, 1.616502),
    Sketcher.Constraint("DistanceX", -1, 1, 1, 2, 0.107421),
    Sketcher.Constraint("DistanceY", 4, 2, -1, 1, 2.780249),
    Sketcher.Constraint("DistanceX", -1, 1, 7, 2, 1.490261),
    Sketcher.Constraint("DistanceX", -1, 1, 8, 2, 1.58702),
    Sketcher.Constraint("DistanceX", -1, 1, 10, 2, 2.062131),
    Sketcher.Constraint("DistanceX", -1, 1, 12, 2, 2.389311),
    Sketcher.Constraint("DistanceX", -1, 1, 13, 2, 2.50443),
    Sketcher.Constraint("DistanceY", 16, 2, -1, 1, 0.79337),
    Sketcher.Constraint("DistanceY", 17, 2, -1, 1, 0.50593),
    Sketcher.Constraint("DistanceY", 19, 2, -1, 1, 0.074758),
    Sketcher.Constraint("DistanceX", -1, 1, 22, 2, 2.826549),
    Sketcher.Constraint("DistanceX", -1, 1, 25, 2, 2.57646),
    Sketcher.Constraint("DistanceY", -1, 1, 27, 2, 1.764491),
    Sketcher.Constraint("DistanceX", -1, 1, 28, 2, 2.164482),
    Sketcher.Constraint("DistanceY", -1, 1, 32, 2, 2.366028),
    Sketcher.Constraint("DistanceX", -1, 1, 34, 2, 0.966951),
    Sketcher.Constraint("DistanceX", -1, 1, 36, 2, 0.469791),
    Sketcher.Constraint("DistanceX", -1, 1, 5, 2, 0.993936),
    Sketcher.Constraint("DistanceX", -1, 1, 20, 2, 2.694672),
    Sketcher.Constraint("DistanceX", -1, 1, 23, 2, 2.567853),
])
pad2 = doc.addObject("PartDesign::Pad", "Pad001")
body.addObject(pad2)
pad2.Profile = sketch2
pad2.Length = 3.2
pad2.Reversed = True

sketch3 = doc.addObject("Sketcher::SketchObject", "Sketch002")
body.addObject(sketch3)
sketch3.AttachmentSupport = (doc.XZ_Plane, [""])
sketch3.MapMode = "FlatFace"
sketch3.addGeometry([
    Part.LineSegment(App.Vector(16.9, -2.5, 0), App.Vector(4, -4.5, 0)),
    Part.ArcOfCircle(Part.Circle(App.Vector(0, 0, 0), App.Vector(0, 0, 1), 6), math.radians(-49), math.radians(49)),
    Part.LineSegment(App.Vector(4, 4.5, 0), App.Vector(16.9, 2.5, 0)),
    Part.ArcOfCircle(Part.Circle(App.Vector(16.5, 0, 0), App.Vector(0, 0, 1), 2.5), math.radians(-81), math.radians(81)),
    Part.Circle(App.Vector(16, 0, 0), App.Vector(0, 0, 1), 0.8),
    Part.Circle(App.Vector(13, 0, 0), App.Vector(0, 0, 1), 0.8),
    Part.Circle(App.Vector(10, 0, 0), App.Vector(0, 0, 1), 0.8),
    Part.Circle(App.Vector(7, 0, 0), App.Vector(0, 0, 1), 0.8),
], False)
sketch3.addConstraint([
    Sketcher.Constraint("Coincident", 0, 2, 1, 1),
    Sketcher.Constraint("Coincident", 1, 2, 2, 1),
    Sketcher.Constraint("Tangent", 2, 2, 3, 2),
    Sketcher.Constraint("Tangent", 3, 1, 0, 1),
    Sketcher.Constraint("Coincident", 1, 3, -1, 1),
    Sketcher.Constraint("Equal", 4, 5),
    Sketcher.Constraint("Equal", 5, 6),
    Sketcher.Constraint("Equal", 6, 7),
    Sketcher.Constraint("Symmetric", 2, 2, 3, 1, -1),
    Sketcher.Constraint("PointOnObject", 4, 3, -1),
    Sketcher.Constraint("PointOnObject", 5, 3, -1),
    Sketcher.Constraint("PointOnObject", 6, 3, -1),
    Sketcher.Constraint("PointOnObject", 7, 3, -1),
    Sketcher.Constraint("Radius", 1, 6.0),
    Sketcher.Constraint("Diameter", 4, 1.5),
    Sketcher.Constraint("Radius", 3, 2.5),
    Sketcher.Constraint("DistanceX", -1, 1, 4, 3, 16.0),
    Sketcher.Constraint("DistanceX", -1, 1, 5, 3, 13.0),
    Sketcher.Constraint("DistanceX", -1, 1, 6, 3, 10.0),
    Sketcher.Constraint("DistanceX", -1, 1, 7, 3, 7.0),
    Sketcher.Constraint("DistanceY", 0, 2, 1, 2, 9.0),
    Sketcher.Constraint("DistanceX", -1, 1, 3, 3, 16.5),
])
pad3 = doc.addObject("PartDesign::Pad", "Pad002")
body.addObject(pad3)
pad3.Profile = sketch3
pad3.Length = 2.3
pad3.Midplane = True

doc.recompute()
